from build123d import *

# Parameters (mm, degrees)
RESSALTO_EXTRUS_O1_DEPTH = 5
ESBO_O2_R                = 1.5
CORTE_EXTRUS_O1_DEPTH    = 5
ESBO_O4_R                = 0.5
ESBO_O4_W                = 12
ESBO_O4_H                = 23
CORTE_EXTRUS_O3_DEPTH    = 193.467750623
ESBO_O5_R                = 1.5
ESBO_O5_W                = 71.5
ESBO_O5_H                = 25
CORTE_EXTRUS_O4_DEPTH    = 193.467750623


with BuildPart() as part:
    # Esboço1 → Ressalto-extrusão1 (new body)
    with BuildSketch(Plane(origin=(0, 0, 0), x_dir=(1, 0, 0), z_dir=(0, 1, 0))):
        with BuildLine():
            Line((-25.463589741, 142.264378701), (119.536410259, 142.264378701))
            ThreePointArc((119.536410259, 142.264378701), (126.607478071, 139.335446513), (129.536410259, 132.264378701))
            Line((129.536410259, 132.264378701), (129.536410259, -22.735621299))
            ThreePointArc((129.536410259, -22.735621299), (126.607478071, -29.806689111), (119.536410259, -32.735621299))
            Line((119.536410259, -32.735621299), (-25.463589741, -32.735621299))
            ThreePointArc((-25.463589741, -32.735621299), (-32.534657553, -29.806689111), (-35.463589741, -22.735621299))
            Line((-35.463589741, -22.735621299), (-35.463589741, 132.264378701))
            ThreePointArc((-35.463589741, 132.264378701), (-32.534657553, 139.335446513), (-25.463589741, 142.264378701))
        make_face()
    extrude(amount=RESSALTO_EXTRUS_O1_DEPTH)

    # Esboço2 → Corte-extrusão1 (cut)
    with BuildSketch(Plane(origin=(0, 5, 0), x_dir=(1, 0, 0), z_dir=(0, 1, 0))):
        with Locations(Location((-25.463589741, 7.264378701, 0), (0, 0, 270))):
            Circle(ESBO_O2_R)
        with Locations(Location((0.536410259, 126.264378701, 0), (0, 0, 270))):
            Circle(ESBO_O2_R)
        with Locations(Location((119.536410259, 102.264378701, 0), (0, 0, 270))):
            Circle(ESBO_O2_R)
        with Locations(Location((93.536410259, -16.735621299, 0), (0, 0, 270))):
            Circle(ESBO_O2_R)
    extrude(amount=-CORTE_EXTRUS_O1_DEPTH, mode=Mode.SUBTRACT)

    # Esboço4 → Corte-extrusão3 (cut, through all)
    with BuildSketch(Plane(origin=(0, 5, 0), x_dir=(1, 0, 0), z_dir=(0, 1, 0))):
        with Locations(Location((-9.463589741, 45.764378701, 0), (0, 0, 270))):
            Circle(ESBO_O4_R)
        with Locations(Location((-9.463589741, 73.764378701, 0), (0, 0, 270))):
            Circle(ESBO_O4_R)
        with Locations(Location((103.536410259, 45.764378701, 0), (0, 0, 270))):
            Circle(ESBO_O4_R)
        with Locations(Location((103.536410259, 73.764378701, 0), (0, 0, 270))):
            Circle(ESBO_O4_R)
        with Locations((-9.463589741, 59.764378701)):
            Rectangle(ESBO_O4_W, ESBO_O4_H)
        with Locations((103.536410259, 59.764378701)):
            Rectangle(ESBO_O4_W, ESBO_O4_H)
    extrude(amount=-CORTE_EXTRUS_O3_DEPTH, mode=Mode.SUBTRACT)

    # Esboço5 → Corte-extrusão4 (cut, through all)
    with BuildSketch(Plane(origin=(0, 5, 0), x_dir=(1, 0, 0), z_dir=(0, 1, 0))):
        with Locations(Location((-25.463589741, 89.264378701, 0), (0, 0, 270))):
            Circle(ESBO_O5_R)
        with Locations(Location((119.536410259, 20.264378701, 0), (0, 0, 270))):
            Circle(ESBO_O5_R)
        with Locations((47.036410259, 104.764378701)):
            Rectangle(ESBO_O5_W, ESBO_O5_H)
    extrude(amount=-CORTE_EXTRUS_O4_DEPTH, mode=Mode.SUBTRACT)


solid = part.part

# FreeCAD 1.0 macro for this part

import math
import FreeCAD as App
import Part
import Sketcher
from FreeCAD import Vector

doc = App.newDocument("Part")
body = doc.addObject("PartDesign::Body", "Body")

# Sketch on XZ plane
sketch1 = body.newObject("Sketcher::SketchObject", "Sketch")
sketch1.AttachmentSupport = (doc.getObject("XZ_Plane"), [""])
sketch1.MapMode = "FlatFace"
sketch1.addGeometry([
    Part.LineSegment(Vector(120, -142, 0), Vector(-25, -142, 0)),  # 0
    Part.ArcOfCircle(Part.Circle(Vector(-25, -132, 0), Vector(0, 0, 1), 10), math.radians(180), math.radians(270)),  # 1
    Part.LineSegment(Vector(-35, -132, 0), Vector(-35, 23, 0)),  # 2
    Part.ArcOfCircle(Part.Circle(Vector(-25, 23, 0), Vector(0, 0, 1), 10), math.radians(90), math.radians(180)),  # 3
    Part.LineSegment(Vector(-25, 33, 0), Vector(120, 33, 0)),  # 4
    Part.ArcOfCircle(Part.Circle(Vector(120, 23, 0), Vector(0, 0, 1), 10), math.radians(0), math.radians(90)),  # 5
    Part.LineSegment(Vector(130, 23, 0), Vector(130, -132, 0)),  # 6
    Part.ArcOfCircle(Part.Circle(Vector(120, -132, 0), Vector(0, 0, 1), 10), math.radians(-90), math.radians(0)),  # 7
], False)
sketch1.addConstraint([
    Sketcher.Constraint("Tangent", 0, 2, 1, 2),
    Sketcher.Constraint("Tangent", 1, 1, 2, 1),
    Sketcher.Constraint("Tangent", 2, 2, 3, 2),
    Sketcher.Constraint("Tangent", 3, 1, 4, 1),
    Sketcher.Constraint("Tangent", 4, 2, 5, 2),
    Sketcher.Constraint("Tangent", 5, 1, 6, 1),
    Sketcher.Constraint("Tangent", 6, 2, 7, 2),
    Sketcher.Constraint("Tangent", 7, 1, 0, 1),
    Sketcher.Constraint("Horizontal", 0),
    Sketcher.Constraint("Vertical", 2),
    Sketcher.Constraint("Horizontal", 4),
    Sketcher.Constraint("Vertical", 6),
    Sketcher.Constraint("Equal", 1, 3),
    Sketcher.Constraint("Equal", 3, 5),
    Sketcher.Constraint("Equal", 5, 7),
    Sketcher.Constraint("Radius", 1, 10.0),
    Sketcher.Constraint("DistanceX", 0, 2, 0, 1, 145.0),
    Sketcher.Constraint("DistanceY", 2, 1, 2, 2, 155.0),
    Sketcher.Constraint("DistanceX", 1, 3, -1, 1, 25.46359),
    Sketcher.Constraint("DistanceY", 1, 3, -1, 1, 132.264379),
])
pad1 = body.newObject("PartDesign::Pad", "Pad")
pad1.Profile = sketch1
pad1.Length = 5
pad1.Reversed = True

# Sketch on XZ plane
sketch2 = body.newObject("Sketcher::SketchObject", "Sketch001")
sketch2.AttachmentSupport = (doc.getObject("XZ_Plane"), [""])
sketch2.MapMode = "FlatFace"
sketch2.AttachmentOffset = App.Placement(Vector(0, 0, -5), App.Rotation())
sketch2.addGeometry([
    Part.Circle(Vector(-25.5, -7.3, 0), Vector(0, 0, 1), 1.5),
    Part.Circle(Vector(0.5, -126.3, 0), Vector(0, 0, 1), 1.5),
    Part.Circle(Vector(119.5, -102.3, 0), Vector(0, 0, 1), 1.5),
    Part.Circle(Vector(93.5, 16.7, 0), Vector(0, 0, 1), 1.5),
], False)
sketch2.addConstraint([
    Sketcher.Constraint("Equal", 0, 1),
    Sketcher.Constraint("Equal", 1, 2),
    Sketcher.Constraint("Equal", 2, 3),
    Sketcher.Constraint("Diameter", 0, 3.0),
    Sketcher.Constraint("DistanceX", 0, 3, 1, 3, 26.0),
    Sketcher.Constraint("DistanceY", 1, 3, 0, 3, 119.0),
    Sketcher.Constraint("DistanceX", 1, 3, 2, 3, 119.0),
    Sketcher.Constraint("DistanceY", 1, 3, 2, 3, 24.0),
    Sketcher.Constraint("DistanceX", 0, 3, 3, 3, 119.0),
    Sketcher.Constraint("DistanceY", 0, 3, 3, 3, 24.0),
    Sketcher.Constraint("DistanceX", 0, 3, -1, 1, 25.46359),
    Sketcher.Constraint("DistanceY", 0, 3, -1, 1, 7.264379),
])
pocket1 = body.newObject("PartDesign::Pocket", "Pocket")
pocket1.Profile = sketch2
pocket1.Length = 5
pocket1.Reversed = True

# Sketch on XZ plane
sketch3 = body.newObject("Sketcher::SketchObject", "Sketch002")
sketch3.AttachmentSupport = (doc.getObject("XZ_Plane"), [""])
sketch3.MapMode = "FlatFace"
sketch3.AttachmentOffset = App.Placement(Vector(0, 0, -5), App.Rotation())
sketch3.addGeometry([
    Part.Circle(Vector(-9.5, -45.8, 0), Vector(0, 0, 1), 0.5),  # 0
    Part.Circle(Vector(-9.5, -73.8, 0), Vector(0, 0, 1), 0.5),  # 1
    Part.Circle(Vector(103.5, -45.8, 0), Vector(0, 0, 1), 0.5),  # 2
    Part.Circle(Vector(103.5, -73.8, 0), Vector(0, 0, 1), 0.5),  # 3
    Part.LineSegment(Vector(-15.5, -71.3, 0), Vector(-15.5, -48.3, 0)),  # 4
    Part.LineSegment(Vector(-15.5, -48.3, 0), Vector(-3.5, -48.3, 0)),  # 5
    Part.LineSegment(Vector(-3.5, -48.3, 0), Vector(-3.5, -71.3, 0)),  # 6
    Part.LineSegment(Vector(-3.5, -71.3, 0), Vector(-15.5, -71.3, 0)),  # 7
    Part.LineSegment(Vector(97.5, -71.3, 0), Vector(97.5, -48.3, 0)),  # 8
    Part.LineSegment(Vector(97.5, -48.3, 0), Vector(109.5, -48.3, 0)),  # 9
    Part.LineSegment(Vector(109.5, -48.3, 0), Vector(109.5, -71.3, 0)),  # 10
    Part.LineSegment(Vector(109.5, -71.3, 0), Vector(97.5, -71.3, 0)),  # 11
], False)
sketch3.addConstraint([
    Sketcher.Constraint("Coincident", 4, 2, 5, 1),
    Sketcher.Constraint("Coincident", 5, 2, 6, 1),
    Sketcher.Constraint("Coincident", 6, 2, 7, 1),
    Sketcher.Constraint("Coincident", 7, 2, 4, 1),
    Sketcher.Constraint("Coincident", 8, 2, 9, 1),
    Sketcher.Constraint("Coincident", 9, 2, 10, 1),
    Sketcher.Constraint("Coincident", 10, 2, 11, 1),
    Sketcher.Constraint("Coincident", 11, 2, 8, 1),
    Sketcher.Constraint("Vertical", 4),
    Sketcher.Constraint("Horizontal", 5),
    Sketcher.Constraint("Vertical", 6),
    Sketcher.Constraint("Horizontal", 7),
    Sketcher.Constraint("Vertical", 8),
    Sketcher.Constraint("Horizontal", 9),
    Sketcher.Constraint("Vertical", 10),
    Sketcher.Constraint("Horizontal", 11),
    Sketcher.Constraint("Equal", 0, 1),
    Sketcher.Constraint("Equal", 1, 2),
    Sketcher.Constraint("Equal", 2, 3),
    Sketcher.Constraint("Horizontal", 0, 3, 2, 3),
    Sketcher.Constraint("Horizontal", 1, 3, 3, 3),
    Sketcher.Constraint("Horizontal", 5, 2, 8, 2),
    Sketcher.Constraint("Horizontal", 7, 2, 10, 2),
    Sketcher.Constraint("Vertical", 0, 3, 1, 3),
    Sketcher.Constraint("Vertical", 2, 3, 3, 3),
    Sketcher.Constraint("Equal", 7, 9),
    Sketcher.Constraint("Diameter", 0, 1.0),
    Sketcher.Constraint("DistanceX", 5, 1, 5, 2, 12.0),
    Sketcher.Constraint("DistanceY", 4, 1, 4, 2, 23.0),
    Sketcher.Constraint("DistanceY", 1, 3, 0, 3, 28.0),
    Sketcher.Constraint("DistanceX", 0, 3, 2, 3, 113.0),
    Sketcher.Constraint("DistanceX", 4, 2, 0, 3, 6.0),
    Sketcher.Constraint("DistanceX", 8, 2, 2, 3, 6.0),
    Sketcher.Constraint("DistanceY", 4, 2, 0, 3, 2.5),
    Sketcher.Constraint("DistanceX", 0, 3, -1, 1, 9.46359),
    Sketcher.Constraint("DistanceY", 0, 3, -1, 1, 45.764379),
])
pocket2 = body.newObject("PartDesign::Pocket", "Pocket001")
pocket2.Profile = sketch3
pocket2.Type = "ThroughAll"
pocket2.Reversed = True

# Sketch on XZ plane
sketch4 = body.newObject("Sketcher::SketchObject", "Sketch003")
sketch4.AttachmentSupport = (doc.getObject("XZ_Plane"), [""])
sketch4.MapMode = "FlatFace"
sketch4.AttachmentOffset = App.Placement(Vector(0, 0, -5), App.Rotation())
sketch4.addGeometry([
    Part.Circle(Vector(-25.5, -89.3, 0), Vector(0, 0, 1), 1.5),  # 0
    Part.Circle(Vector(119.5, -20.3, 0), Vector(0, 0, 1), 1.5),  # 1
    Part.LineSegment(Vector(11.3, -117.3, 0), Vector(11.3, -92.3, 0)),  # 2
    Part.LineSegment(Vector(11.3, -92.3, 0), Vector(82.8, -92.3, 0)),  # 3
    Part.LineSegment(Vector(82.8, -92.3, 0), Vector(82.8, -117.3, 0)),  # 4
    Part.LineSegment(Vector(82.8, -117.3, 0), Vector(11.3, -117.3, 0)),  # 5
], False)
sketch4.addConstraint([
    Sketcher.Constraint("Coincident", 2, 2, 3, 1),
    Sketcher.Constraint("Coincident", 3, 2, 4, 1),
    Sketcher.Constraint("Coincident", 4, 2, 5, 1),
    Sketcher.Constraint("Coincident", 5, 2, 2, 1),
    Sketcher.Constraint("Vertical", 2),
    Sketcher.Constraint("Horizontal", 3),
    Sketcher.Constraint("Vertical", 4),
    Sketcher.Constraint("Horizontal", 5),
    Sketcher.Constraint("Equal", 0, 1),
    Sketcher.Constraint("Diameter", 0, 3.0),
    Sketcher.Constraint("DistanceY", 2, 1, 2, 2, 25.0),
    Sketcher.Constraint("DistanceX", 3, 1, 3, 2, 71.5),
    Sketcher.Constraint("DistanceX", 0, 3, 1, 3, 145.0),
    Sketcher.Constraint("DistanceY", 0, 3, 1, 3, 69.0),
    Sketcher.Constraint("DistanceY", 2, 2, 0, 3, 3.0),
    Sketcher.Constraint("DistanceX", 0, 3, 2, 2, 36.75),
    Sketcher.Constraint("DistanceX", 0, 3, -1, 1, 25.46359),
    Sketcher.Constraint("DistanceY", 0, 3, -1, 1, 89.264379),
])
pocket3 = body.newObject("PartDesign::Pocket", "Pocket002")
pocket3.Profile = sketch4
pocket3.Type = "ThroughAll"
pocket3.Reversed = True

doc.recompute()
